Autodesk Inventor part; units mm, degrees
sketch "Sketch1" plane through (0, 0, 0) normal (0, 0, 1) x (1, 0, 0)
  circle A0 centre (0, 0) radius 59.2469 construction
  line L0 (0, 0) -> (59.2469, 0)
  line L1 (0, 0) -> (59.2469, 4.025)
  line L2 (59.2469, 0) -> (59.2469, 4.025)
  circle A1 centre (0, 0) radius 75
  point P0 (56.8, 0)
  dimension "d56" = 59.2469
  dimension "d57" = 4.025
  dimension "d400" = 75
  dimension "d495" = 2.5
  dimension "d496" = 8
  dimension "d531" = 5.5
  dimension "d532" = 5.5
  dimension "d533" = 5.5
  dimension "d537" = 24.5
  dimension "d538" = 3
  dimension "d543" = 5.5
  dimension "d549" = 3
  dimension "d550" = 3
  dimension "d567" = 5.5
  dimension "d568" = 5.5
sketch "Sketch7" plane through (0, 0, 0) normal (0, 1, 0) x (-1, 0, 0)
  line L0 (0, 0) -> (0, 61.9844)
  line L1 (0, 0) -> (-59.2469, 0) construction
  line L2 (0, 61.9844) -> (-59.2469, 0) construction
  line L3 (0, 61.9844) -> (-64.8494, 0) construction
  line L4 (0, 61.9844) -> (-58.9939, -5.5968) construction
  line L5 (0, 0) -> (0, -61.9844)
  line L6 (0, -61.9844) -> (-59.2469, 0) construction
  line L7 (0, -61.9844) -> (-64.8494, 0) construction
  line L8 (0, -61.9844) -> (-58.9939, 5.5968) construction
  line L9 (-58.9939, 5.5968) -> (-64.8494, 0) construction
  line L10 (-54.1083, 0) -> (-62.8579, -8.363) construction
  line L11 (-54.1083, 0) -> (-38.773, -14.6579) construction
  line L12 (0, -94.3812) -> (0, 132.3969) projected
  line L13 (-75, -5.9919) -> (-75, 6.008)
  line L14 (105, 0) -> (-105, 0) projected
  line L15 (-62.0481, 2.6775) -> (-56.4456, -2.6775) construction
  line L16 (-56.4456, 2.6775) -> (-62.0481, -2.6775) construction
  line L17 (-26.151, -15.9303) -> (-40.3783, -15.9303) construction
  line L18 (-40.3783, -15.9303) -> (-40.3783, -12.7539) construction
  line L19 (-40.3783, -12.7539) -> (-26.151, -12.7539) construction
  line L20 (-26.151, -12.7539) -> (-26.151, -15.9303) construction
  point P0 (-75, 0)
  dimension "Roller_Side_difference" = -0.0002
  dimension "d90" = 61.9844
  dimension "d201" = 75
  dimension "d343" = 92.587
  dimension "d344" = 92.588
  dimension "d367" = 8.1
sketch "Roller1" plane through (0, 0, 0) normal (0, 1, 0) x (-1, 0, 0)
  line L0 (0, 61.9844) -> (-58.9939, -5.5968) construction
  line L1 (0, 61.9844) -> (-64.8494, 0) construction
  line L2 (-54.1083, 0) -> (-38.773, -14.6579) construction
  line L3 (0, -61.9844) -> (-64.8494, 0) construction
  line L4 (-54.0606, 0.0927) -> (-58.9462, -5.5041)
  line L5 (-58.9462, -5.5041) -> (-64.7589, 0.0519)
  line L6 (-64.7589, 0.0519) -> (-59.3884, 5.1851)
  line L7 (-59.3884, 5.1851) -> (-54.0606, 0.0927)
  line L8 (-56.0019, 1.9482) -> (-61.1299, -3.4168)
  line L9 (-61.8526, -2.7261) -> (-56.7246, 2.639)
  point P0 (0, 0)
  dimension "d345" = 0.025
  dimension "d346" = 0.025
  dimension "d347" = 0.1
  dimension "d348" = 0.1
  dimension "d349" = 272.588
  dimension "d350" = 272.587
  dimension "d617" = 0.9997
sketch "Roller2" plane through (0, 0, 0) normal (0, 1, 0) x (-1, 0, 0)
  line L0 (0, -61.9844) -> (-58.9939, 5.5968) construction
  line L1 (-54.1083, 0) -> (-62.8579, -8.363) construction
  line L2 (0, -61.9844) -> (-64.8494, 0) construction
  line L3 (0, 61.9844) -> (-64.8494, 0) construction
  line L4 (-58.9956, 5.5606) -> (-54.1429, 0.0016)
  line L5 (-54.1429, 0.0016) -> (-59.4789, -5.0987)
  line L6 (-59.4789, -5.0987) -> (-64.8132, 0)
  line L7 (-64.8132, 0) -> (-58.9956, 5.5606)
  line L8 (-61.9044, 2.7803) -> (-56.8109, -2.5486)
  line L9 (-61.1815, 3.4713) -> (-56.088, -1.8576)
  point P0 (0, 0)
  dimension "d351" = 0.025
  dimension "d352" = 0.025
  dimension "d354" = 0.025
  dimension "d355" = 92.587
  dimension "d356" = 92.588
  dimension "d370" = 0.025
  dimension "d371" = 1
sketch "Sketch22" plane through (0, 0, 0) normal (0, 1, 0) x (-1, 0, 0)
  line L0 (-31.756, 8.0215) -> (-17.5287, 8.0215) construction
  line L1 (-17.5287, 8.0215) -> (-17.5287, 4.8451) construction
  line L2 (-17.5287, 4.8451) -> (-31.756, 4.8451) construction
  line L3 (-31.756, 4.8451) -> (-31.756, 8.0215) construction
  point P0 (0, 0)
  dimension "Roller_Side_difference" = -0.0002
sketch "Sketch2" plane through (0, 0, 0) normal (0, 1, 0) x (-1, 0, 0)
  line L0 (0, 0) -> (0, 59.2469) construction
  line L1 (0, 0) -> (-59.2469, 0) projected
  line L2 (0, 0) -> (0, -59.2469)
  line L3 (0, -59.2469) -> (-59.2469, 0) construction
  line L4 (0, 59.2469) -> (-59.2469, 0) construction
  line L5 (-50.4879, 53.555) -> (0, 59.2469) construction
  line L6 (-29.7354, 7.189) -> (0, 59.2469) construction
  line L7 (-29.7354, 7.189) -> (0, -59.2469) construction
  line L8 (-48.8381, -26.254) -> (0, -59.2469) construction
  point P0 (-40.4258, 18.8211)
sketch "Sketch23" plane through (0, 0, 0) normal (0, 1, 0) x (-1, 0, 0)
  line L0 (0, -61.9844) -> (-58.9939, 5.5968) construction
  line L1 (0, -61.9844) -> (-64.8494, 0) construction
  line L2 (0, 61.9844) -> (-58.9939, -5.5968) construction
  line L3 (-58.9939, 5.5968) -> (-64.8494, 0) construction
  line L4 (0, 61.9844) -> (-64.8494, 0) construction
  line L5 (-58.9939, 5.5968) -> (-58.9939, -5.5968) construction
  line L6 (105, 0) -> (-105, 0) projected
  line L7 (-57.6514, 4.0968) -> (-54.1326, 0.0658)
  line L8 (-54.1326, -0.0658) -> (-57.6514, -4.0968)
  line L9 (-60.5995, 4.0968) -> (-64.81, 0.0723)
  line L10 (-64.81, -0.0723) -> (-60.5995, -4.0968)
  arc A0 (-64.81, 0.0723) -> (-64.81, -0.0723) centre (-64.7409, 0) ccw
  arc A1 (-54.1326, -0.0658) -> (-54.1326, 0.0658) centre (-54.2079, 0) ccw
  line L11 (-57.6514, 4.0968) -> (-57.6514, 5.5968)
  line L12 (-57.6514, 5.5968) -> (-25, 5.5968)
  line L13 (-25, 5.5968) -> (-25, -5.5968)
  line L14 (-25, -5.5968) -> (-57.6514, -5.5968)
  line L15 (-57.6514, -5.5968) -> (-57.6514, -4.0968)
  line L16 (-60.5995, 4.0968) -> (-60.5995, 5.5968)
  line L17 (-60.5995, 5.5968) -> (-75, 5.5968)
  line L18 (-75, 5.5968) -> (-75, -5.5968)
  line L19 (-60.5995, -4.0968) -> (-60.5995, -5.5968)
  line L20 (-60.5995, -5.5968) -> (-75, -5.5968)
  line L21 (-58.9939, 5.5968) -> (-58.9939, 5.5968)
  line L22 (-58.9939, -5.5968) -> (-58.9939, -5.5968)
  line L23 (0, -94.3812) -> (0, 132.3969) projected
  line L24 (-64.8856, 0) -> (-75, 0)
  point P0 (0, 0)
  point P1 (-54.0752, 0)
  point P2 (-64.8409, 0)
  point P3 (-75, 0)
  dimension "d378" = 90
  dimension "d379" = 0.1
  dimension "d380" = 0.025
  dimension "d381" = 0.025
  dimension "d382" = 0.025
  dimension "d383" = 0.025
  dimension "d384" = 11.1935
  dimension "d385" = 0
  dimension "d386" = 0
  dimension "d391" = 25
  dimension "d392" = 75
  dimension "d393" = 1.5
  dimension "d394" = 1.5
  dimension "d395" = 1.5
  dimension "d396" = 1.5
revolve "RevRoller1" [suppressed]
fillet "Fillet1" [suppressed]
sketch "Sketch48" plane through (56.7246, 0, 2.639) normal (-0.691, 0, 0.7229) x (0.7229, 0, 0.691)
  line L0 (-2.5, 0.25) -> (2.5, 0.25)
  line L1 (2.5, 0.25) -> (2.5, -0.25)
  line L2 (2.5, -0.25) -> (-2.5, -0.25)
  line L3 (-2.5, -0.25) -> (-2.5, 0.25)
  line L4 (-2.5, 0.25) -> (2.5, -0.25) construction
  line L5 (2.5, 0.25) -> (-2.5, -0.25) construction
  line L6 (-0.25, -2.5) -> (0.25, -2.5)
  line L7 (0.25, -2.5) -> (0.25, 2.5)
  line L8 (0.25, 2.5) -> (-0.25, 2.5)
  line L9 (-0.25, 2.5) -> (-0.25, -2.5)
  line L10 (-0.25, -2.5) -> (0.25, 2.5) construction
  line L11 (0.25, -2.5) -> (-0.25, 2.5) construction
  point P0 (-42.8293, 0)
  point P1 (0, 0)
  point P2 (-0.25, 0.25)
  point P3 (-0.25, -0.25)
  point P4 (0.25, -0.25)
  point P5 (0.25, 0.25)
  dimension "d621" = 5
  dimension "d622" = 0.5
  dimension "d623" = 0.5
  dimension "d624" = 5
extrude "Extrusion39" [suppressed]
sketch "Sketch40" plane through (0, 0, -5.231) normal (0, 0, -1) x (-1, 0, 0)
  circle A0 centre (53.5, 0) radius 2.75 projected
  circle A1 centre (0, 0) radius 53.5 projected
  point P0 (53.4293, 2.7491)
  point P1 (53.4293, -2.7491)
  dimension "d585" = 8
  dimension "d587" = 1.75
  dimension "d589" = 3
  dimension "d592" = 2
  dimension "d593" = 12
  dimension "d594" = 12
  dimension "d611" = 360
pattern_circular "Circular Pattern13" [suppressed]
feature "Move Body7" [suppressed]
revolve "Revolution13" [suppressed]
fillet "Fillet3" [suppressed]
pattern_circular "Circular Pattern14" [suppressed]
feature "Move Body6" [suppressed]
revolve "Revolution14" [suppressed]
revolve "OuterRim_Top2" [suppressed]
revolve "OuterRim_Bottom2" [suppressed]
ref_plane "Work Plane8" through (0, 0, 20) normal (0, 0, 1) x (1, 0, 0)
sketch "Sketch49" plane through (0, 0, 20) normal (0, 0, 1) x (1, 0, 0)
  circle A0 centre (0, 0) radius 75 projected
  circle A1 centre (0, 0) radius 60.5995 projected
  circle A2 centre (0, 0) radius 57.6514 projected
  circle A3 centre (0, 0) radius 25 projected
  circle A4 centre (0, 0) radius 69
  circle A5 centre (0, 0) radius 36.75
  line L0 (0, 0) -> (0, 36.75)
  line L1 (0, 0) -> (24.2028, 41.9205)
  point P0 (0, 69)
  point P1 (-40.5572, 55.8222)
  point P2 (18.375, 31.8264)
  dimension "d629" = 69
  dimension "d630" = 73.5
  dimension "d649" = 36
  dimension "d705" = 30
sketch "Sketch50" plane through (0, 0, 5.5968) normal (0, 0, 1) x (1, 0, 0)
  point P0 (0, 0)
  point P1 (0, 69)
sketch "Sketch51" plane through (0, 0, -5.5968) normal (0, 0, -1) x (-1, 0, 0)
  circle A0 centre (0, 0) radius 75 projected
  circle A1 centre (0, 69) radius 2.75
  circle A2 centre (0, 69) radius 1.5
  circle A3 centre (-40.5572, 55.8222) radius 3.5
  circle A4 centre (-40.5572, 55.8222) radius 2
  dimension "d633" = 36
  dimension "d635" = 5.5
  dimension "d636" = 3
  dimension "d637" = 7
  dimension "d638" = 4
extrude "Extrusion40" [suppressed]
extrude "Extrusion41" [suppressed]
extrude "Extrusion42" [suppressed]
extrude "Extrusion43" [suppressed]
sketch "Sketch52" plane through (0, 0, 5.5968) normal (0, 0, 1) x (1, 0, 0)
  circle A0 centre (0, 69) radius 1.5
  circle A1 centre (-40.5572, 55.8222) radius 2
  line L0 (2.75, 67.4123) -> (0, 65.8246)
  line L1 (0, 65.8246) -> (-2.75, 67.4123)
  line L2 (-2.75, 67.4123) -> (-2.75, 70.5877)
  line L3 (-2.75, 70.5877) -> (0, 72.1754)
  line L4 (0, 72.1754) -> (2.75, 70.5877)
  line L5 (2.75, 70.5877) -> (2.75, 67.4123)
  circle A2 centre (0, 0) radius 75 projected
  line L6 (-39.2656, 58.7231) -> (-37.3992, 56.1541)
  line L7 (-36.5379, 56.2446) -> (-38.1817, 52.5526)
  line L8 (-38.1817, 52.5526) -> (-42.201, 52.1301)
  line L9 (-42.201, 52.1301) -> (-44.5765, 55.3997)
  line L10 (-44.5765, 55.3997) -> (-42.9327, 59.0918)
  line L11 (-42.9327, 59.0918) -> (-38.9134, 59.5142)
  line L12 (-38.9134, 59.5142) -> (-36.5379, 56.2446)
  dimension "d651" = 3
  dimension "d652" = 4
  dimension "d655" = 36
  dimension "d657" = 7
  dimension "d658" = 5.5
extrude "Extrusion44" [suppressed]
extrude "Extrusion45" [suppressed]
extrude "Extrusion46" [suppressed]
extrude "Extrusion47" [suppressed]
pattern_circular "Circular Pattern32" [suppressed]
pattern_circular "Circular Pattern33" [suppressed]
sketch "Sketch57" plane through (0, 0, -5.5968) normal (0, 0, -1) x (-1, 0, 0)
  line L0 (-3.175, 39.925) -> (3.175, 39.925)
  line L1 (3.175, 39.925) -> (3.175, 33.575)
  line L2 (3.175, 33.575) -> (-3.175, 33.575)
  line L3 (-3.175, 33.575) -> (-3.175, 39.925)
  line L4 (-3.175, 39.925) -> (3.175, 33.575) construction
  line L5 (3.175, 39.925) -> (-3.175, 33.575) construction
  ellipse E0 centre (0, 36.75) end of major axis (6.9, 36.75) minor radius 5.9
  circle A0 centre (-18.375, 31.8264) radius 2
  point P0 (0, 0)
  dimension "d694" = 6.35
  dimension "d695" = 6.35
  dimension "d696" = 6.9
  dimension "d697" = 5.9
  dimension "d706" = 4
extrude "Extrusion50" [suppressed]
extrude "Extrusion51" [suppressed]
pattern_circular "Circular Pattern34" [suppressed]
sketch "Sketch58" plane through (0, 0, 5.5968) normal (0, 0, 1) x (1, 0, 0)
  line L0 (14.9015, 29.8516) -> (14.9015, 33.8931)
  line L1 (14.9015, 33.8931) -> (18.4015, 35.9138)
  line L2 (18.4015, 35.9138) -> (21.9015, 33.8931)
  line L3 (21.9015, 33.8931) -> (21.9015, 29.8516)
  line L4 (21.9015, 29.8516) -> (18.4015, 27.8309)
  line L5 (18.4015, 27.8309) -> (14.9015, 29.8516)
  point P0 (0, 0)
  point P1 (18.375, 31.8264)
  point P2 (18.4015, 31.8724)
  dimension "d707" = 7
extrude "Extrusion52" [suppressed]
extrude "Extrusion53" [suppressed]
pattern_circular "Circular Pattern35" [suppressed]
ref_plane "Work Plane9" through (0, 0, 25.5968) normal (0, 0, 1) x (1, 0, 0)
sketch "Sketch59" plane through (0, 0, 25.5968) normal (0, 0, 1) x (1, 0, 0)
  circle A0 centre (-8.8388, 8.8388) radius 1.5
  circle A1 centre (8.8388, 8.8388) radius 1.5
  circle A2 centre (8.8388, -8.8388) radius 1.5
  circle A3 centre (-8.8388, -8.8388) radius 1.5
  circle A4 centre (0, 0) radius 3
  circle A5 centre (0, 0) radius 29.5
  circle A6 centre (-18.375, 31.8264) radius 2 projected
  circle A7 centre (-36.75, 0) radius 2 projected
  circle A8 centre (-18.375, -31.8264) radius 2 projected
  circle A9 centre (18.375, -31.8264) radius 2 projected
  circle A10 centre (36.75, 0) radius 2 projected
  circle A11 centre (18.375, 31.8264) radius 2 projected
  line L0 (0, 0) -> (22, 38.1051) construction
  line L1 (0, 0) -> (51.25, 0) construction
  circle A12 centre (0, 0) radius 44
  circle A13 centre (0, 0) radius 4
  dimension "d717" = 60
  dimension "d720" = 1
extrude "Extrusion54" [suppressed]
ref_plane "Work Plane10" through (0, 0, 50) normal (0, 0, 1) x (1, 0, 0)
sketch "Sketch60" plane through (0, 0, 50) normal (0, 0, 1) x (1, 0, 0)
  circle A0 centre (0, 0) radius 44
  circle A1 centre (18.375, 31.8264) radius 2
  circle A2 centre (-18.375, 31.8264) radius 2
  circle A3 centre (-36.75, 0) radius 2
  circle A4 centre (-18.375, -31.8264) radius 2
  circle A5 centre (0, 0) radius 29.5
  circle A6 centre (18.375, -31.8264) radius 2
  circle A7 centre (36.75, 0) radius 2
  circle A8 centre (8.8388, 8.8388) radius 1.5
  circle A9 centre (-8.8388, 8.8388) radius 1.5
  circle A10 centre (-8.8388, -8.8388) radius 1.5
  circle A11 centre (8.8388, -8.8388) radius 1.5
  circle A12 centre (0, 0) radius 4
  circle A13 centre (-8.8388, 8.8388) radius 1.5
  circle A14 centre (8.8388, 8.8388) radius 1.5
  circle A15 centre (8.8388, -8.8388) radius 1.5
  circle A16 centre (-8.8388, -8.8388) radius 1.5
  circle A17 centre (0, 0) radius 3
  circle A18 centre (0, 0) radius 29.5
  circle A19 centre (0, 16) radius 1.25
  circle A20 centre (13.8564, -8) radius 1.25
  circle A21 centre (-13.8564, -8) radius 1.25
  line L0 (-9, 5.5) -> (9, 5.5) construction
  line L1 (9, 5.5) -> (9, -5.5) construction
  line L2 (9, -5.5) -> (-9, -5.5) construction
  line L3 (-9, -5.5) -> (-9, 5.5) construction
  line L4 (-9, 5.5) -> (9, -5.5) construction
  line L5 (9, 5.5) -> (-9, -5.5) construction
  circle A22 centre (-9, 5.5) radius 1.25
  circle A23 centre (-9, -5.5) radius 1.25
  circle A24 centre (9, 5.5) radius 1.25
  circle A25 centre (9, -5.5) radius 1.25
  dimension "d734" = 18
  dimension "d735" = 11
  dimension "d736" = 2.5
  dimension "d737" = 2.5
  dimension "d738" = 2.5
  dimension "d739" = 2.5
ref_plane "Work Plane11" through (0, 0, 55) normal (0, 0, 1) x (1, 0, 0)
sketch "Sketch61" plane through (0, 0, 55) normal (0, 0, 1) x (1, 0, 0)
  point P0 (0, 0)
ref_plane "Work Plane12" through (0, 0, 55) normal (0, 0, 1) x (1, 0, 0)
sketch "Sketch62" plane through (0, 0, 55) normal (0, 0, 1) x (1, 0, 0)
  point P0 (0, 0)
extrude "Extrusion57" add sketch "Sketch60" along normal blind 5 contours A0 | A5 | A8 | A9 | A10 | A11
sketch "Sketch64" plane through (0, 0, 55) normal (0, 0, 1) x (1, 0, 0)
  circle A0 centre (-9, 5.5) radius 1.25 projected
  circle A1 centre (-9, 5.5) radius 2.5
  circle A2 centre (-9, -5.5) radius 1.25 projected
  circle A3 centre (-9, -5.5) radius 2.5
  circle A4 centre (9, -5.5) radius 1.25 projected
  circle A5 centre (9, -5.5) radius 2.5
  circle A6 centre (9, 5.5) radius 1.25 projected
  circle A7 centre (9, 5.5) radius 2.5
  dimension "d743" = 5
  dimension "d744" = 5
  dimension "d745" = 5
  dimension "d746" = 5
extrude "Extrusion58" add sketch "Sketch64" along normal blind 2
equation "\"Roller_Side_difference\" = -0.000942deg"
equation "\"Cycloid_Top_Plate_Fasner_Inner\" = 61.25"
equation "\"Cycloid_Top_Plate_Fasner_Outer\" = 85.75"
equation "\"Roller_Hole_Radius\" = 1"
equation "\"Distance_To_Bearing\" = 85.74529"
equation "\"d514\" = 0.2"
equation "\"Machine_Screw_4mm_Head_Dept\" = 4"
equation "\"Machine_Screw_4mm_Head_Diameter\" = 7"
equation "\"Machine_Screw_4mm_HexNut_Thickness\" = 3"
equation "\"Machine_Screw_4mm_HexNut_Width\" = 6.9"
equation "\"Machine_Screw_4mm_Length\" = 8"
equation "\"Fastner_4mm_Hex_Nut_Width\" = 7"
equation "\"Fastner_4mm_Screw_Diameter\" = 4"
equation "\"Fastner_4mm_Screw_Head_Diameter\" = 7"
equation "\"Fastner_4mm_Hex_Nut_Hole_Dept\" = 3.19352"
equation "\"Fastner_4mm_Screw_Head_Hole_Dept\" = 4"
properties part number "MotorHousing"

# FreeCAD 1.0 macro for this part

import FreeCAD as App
import Part
import Sketcher

V = App.Vector

doc = App.newDocument("Part")
body = doc.addObject("PartDesign::Body", "Body")

# Sketch on XY plane
sketch1 = body.newObject("Sketcher::SketchObject", "Sketch")
sketch1.AttachmentSupport = (doc.getObject("XY_Plane"), [""])
sketch1.MapMode = "FlatFace"
sketch1.AttachmentOffset = App.Placement(V(0, 0, 50), App.Rotation())
sketch1.addGeometry([
    Part.Circle(V(0, 0, 0), V(0, 0, 1), 44),  # 0
    Part.Circle(V(-18.4, -31.8, 0), V(0, 0, 1), 2),  # 1
    Part.Circle(V(18.4, -31.8, 0), V(0, 0, 1), 2),  # 2
    Part.Circle(V(-36.8, 0, 0), V(0, 0, 1), 2),  # 3
    Part.Circle(V(-18.4, 31.8, 0), V(0, 0, 1), 2),  # 4
    Part.Circle(V(36.8, 0, 0), V(0, 0, 1), 2),  # 5
    Part.Circle(V(18.4, 31.8, 0), V(0, 0, 1), 2),  # 6
    Part.Circle(V(0, 16, 0), V(0, 0, 1), 1.2),  # 7
    Part.Circle(V(-13.9, -8, 0), V(0, 0, 1), 1.2),  # 8
    Part.Circle(V(-9, -5.5, 0), V(0, 0, 1), 1.2),  # 9
    Part.Circle(V(9, -5.5, 0), V(0, 0, 1), 1.2),  # 10
    Part.Circle(V(13.9, -8, 0), V(0, 0, 1), 1.2),  # 11
    Part.Circle(V(-9, 5.5, 0), V(0, 0, 1), 1.2),  # 12
    Part.Circle(V(0, 0, 0), V(0, 0, 1), 4),  # 13
    Part.Circle(V(9, 5.5, 0), V(0, 0, 1), 1.2),  # 14
], False)
sketch1.addConstraint([
    Sketcher.Constraint("Coincident", 0, 3, -1, 1),
    Sketcher.Constraint("Coincident", 13, 3, -1, 1),
    Sketcher.Constraint("Equal", 1, 2),
    Sketcher.Constraint("Equal", 2, 3),
    Sketcher.Constraint("Equal", 3, 4),
    Sketcher.Constraint("Equal", 4, 5),
    Sketcher.Constraint("Equal", 5, 6),
    Sketcher.Constraint("Equal", 7, 8),
    Sketcher.Constraint("Equal", 8, 9),
    Sketcher.Constraint("Equal", 9, 10),
    Sketcher.Constraint("Equal", 10, 11),
    Sketcher.Constraint("Equal", 11, 12),
    Sketcher.Constraint("Equal", 12, 14),
    Sketcher.Constraint("Symmetric", 2, 3, 4, 3, -1, 1),
    Sketcher.Constraint("Symmetric", 3, 3, 5, 3, -1, 1),
    Sketcher.Constraint("Symmetric", 1, 3, 6, 3, -1, 1),
    Sketcher.Constraint("Symmetric", 10, 3, 12, 3, -1, 1),
    Sketcher.Constraint("Symmetric", 9, 3, 14, 3, -1, 1),
    Sketcher.Constraint("Symmetric", 1, 3, 2, 3, -2),
    Sketcher.Constraint("Symmetric", 9, 3, 10, 3, -2),
    Sketcher.Constraint("Symmetric", 8, 3, 11, 3, -2),
    Sketcher.Constraint("PointOnObject", 3, 3, -1),
    Sketcher.Constraint("PointOnObject", 7, 3, -2),
    Sketcher.Constraint("Diameter", 7, 2.5),
    Sketcher.Constraint("Diameter", 0, 88.0),
    Sketcher.Constraint("Diameter", 1, 4.0),
    Sketcher.Constraint("Diameter", 13, 8.0),
    Sketcher.Constraint("DistanceX", 9, 3, 10, 3, 18.0),
    Sketcher.Constraint("DistanceY", 9, 3, 12, 3, 11.0),
    Sketcher.Constraint("DistanceY", 8, 3, 9, 3, 2.5),
    Sketcher.Constraint("DistanceY", -1, 1, 7, 3, 16.0),
    Sketcher.Constraint("DistanceX", 3, 3, 5, 3, 73.5),
    Sketcher.Constraint("DistanceX", 1, 3, 2, 3, 36.75),
    Sketcher.Constraint("DistanceY", 1, 3, -1, 1, 31.8264),
    Sketcher.Constraint("DistanceX", 8, 3, -1, 1, 13.8564),
])
pad1 = body.newObject("PartDesign::Pad", "Pad")
pad1.Profile = sketch1
pad1.Length = 5

# Sketch on XY plane
sketch2 = body.newObject("Sketcher::SketchObject", "Sketch001")
sketch2.AttachmentSupport = (doc.getObject("XY_Plane"), [""])
sketch2.MapMode = "FlatFace"
sketch2.AttachmentOffset = App.Placement(V(0, 0, 55), App.Rotation())
sketch2.addGeometry([
    Part.Circle(V(-9, 5.5, 0), V(0, 0, 1), 2.5),  # 0
    Part.Circle(V(-9, 5.5, 0), V(0, 0, 1), 1.2),  # 1
    Part.Circle(V(-9, -5.5, 0), V(0, 0, 1), 2.5),  # 2
    Part.Circle(V(-9, -5.5, 0), V(0, 0, 1), 1.2),  # 3
    Part.Circle(V(9, -5.5, 0), V(0, 0, 1), 2.5),  # 4
    Part.Circle(V(9, -5.5, 0), V(0, 0, 1), 1.2),  # 5
    Part.Circle(V(9, 5.5, 0), V(0, 0, 1), 2.5),  # 6
    Part.Circle(V(9, 5.5, 0), V(0, 0, 1), 1.2),  # 7
], False)
sketch2.addConstraint([
    Sketcher.Constraint("Coincident", 1, 3, 0, 3),
    Sketcher.Constraint("Coincident", 3, 3, 2, 3),
    Sketcher.Constraint("Coincident", 5, 3, 4, 3),
    Sketcher.Constraint("Coincident", 7, 3, 6, 3),
    Sketcher.Constraint("Equal", 0, 2),
    Sketcher.Constraint("Equal", 1, 3),
    Sketcher.Constraint("Equal", 2, 4),
    Sketcher.Constraint("Equal", 3, 5),
    Sketcher.Constraint("Equal", 4, 6),
    Sketcher.Constraint("Equal", 5, 7),
    Sketcher.Constraint("Symmetric", 0, 3, 4, 3, -1, 1),
    Sketcher.Constraint("Symmetric", 2, 3, 6, 3, -1, 1),
    Sketcher.Constraint("Symmetric", 2, 3, 4, 3, -2),
    Sketcher.Constraint("Diameter", 0, 5.0),
    Sketcher.Constraint("Diameter", 1, 2.5),
    Sketcher.Constraint("DistanceX", 0, 3, -1, 1, 9.0),
    Sketcher.Constraint("DistanceY", 2, 3, 0, 3, 11.0),
])
pad2 = body.newObject("PartDesign::Pad", "Pad001")
pad2.Profile = sketch2
pad2.Length = 2

doc.recompute()
